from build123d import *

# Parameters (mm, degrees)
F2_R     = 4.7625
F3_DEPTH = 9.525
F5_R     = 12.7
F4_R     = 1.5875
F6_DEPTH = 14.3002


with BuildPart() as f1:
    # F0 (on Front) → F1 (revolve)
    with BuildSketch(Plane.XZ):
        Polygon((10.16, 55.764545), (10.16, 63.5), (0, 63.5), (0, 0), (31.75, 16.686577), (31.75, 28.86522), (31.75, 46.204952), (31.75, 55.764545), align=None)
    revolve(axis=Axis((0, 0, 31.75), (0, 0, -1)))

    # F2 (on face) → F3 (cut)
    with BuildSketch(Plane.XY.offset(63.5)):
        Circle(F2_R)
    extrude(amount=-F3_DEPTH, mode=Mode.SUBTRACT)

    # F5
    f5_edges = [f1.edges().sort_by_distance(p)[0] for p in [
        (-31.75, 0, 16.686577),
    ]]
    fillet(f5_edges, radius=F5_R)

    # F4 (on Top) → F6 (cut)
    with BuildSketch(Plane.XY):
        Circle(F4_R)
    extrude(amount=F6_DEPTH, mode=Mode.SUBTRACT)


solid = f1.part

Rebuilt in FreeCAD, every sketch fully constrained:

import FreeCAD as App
import Part
import Sketcher
Q = App.Units.Quantity


def edges_at(feature, points):
    """Names of the edges that pass closest to the given points."""
    edges = feature.Shape.Edges
    near = lambda p: min(range(len(edges)), key=lambda i: edges[i].distToShape(Part.Vertex(*p))[0])
    return sorted({f"Edge{near(p) + 1}" for p in points})


def add_polygon(sketch, points):
    """Adds a closed chain of lines whose ends are joined by coincident constraints."""
    first, n = sketch.GeometryCount, len(points)
    for a, b in zip(points, points[1:] + points[:1]):
        sketch.addGeometry(Part.LineSegment(App.Vector(*a, 0), App.Vector(*b, 0)), False)
    for i in range(n):
        sketch.addConstraint(Sketcher.Constraint("Coincident", first + i, 2, first + (i + 1) % n, 1))

doc = App.newDocument("Part")
body = doc.addObject("PartDesign::Body", "Body")

# Sketch on XZ plane
sketch1 = body.newObject("Sketcher::SketchObject", "Sketch")
sketch1.AttachmentSupport = (doc.getObject("XZ_Plane"), [""])
sketch1.MapMode = "FlatFace"
add_polygon(sketch1, [(10, 56), (10, 64), (0, 64), (0, 0), (32, 17), (32, 56)])  # lines 0-5
sketch1.addConstraint([
    Sketcher.Constraint("Vertical", 0),
    Sketcher.Constraint("Horizontal", 1),
    Sketcher.Constraint("Vertical", 2),
    Sketcher.Constraint("Vertical", 4),
    Sketcher.Constraint("Horizontal", 5),
    Sketcher.Constraint("Coincident", 2, 2, -1, 1),
    Sketcher.Constraint("DistanceX", 1, 2, 1, 1, Q("0.4 in")),
    Sketcher.Constraint("DistanceY", 2, 2, 2, 1, Q("2.5 in")),
    Sketcher.Constraint("DistanceX", 5, 2, 5, 1, Q("0.85 in")),
    Sketcher.Constraint("DistanceY", 0, 1, 0, 2, 7.735455),
    Sketcher.Constraint("DistanceY", 4, 1, 4, 2, 39.077968),
])
revolution = body.newObject("PartDesign::Revolution", "Revolution")
revolution.Profile = sketch1
revolution.ReferenceAxis = (sketch1, ["V_Axis"])
revolution.Angle = 360

# Sketch on XY plane
sketch2 = body.newObject("Sketcher::SketchObject", "Sketch001")
sketch2.AttachmentSupport = (doc.getObject("XY_Plane"), [""])
sketch2.MapMode = "FlatFace"
sketch2.AttachmentOffset = App.Placement(App.Vector(0, 0, 2.5 * 25.4), App.Rotation())
sketch2.addGeometry(Part.Circle(App.Vector(0, 0, 0), App.Vector(0, 0, 1), 4.8), False)
sketch2.addConstraint([
    Sketcher.Constraint("Coincident", 0, 3, -1, 1),
    Sketcher.Constraint("Diameter", 0, Q("0.375 in")),
])
pocket1 = body.newObject("PartDesign::Pocket", "Pocket")
pocket1.Profile = sketch2
pocket1.Length = Q("0.375 in")
doc.recompute()

fillet = body.newObject("PartDesign::Fillet", "Fillet")
fillet.Base = (pocket1, edges_at(pocket1, [(-31.75, 0, 16.687)]))
fillet.Radius = Q("0.5 in")

# Sketch on XY plane
sketch3 = body.newObject("Sketcher::SketchObject", "Sketch002")
sketch3.AttachmentSupport = (doc.getObject("XY_Plane"), [""])
sketch3.MapMode = "FlatFace"
sketch3.addGeometry(Part.Circle(App.Vector(0, 0, 0), App.Vector(0, 0, 1), 1.6), False)
sketch3.addConstraint([
    Sketcher.Constraint("Coincident", 0, 3, -1, 1),
    Sketcher.Constraint("Diameter", 0, Q("0.125 in")),
])
pocket2 = body.newObject("PartDesign::Pocket", "Pocket001")
pocket2.Profile = sketch3
pocket2.Length = Q("0.563 in")
pocket2.Reversed = True

doc.recompute()
